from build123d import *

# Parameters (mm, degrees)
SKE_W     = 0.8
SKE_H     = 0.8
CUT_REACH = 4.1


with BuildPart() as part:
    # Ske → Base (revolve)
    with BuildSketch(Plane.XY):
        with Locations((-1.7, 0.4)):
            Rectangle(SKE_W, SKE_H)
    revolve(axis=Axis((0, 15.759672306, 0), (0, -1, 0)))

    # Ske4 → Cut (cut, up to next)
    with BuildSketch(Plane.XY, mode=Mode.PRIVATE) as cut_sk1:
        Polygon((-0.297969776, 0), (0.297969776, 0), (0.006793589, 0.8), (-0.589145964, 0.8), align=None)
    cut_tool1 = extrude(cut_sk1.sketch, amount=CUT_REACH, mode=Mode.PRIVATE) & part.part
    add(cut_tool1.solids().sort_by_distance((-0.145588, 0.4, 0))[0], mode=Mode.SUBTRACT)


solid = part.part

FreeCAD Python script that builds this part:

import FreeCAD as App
import Part
import Sketcher
from FreeCAD import Vector
Q = App.Units.Quantity

doc = App.newDocument("Part")
body = doc.addObject("PartDesign::Body", "Body")

# Sketch on XY plane
sketch1 = doc.addObject("Sketcher::SketchObject", "Sketch")
body.addObject(sketch1)
sketch1.AttachmentSupport = (doc.XY_Plane, [""])
sketch1.MapMode = "FlatFace"
sketch1.addGeometry([
    Part.LineSegment(Vector(-2.1, 0.8, 0), Vector(-2.1, 0, 0)),
    Part.LineSegment(Vector(-2.1, 0, 0), Vector(-1.3, 0, 0)),
    Part.LineSegment(Vector(-1.3, 0, 0), Vector(-1.3, 0.8, 0)),
    Part.LineSegment(Vector(-1.3, 0.8, 0), Vector(-2.1, 0.8, 0)),
], False)
sketch1.addConstraint([
    Sketcher.Constraint("Coincident", 0, 2, 1, 1),
    Sketcher.Constraint("Coincident", 1, 2, 2, 1),
    Sketcher.Constraint("Coincident", 2, 2, 3, 1),
    Sketcher.Constraint("Coincident", 3, 2, 0, 1),
    Sketcher.Constraint("Vertical", 0),
    Sketcher.Constraint("Horizontal", 1),
    Sketcher.Constraint("Vertical", 2),
    Sketcher.Constraint("Horizontal", 3),
    Sketcher.Constraint("PointOnObject", 0, 2, -1),
    Sketcher.Constraint("Equal", 3, 0),
    Sketcher.Constraint("DistanceX", 1, 1, 1, 2, Q("0.8 mm")),
    Sketcher.Constraint("DistanceX", 0, 2, -1, 1, Q("2.1 mm")),
])
revolution = doc.addObject("PartDesign::Revolution", "Revolution")
body.addObject(revolution)
revolution.Profile = sketch1
revolution.ReferenceAxis = (sketch1, ["V_Axis"])
revolution.Angle = 360

# Sketch on XY plane
sketch2 = doc.addObject("Sketcher::SketchObject", "Sketch001")
body.addObject(sketch2)
sketch2.AttachmentSupport = (doc.XY_Plane, [""])
sketch2.MapMode = "FlatFace"
sketch2.addGeometry([
    Part.LineSegment(Vector(-0.3, 0, 0), Vector(0.3, 0, 0)),
    Part.LineSegment(Vector(0.3, 0, 0), Vector(0, 0.8, 0)),
    Part.LineSegment(Vector(0, 0.8, 0), Vector(-0.6, 0.8, 0)),
    Part.LineSegment(Vector(-0.6, 0.8, 0), Vector(-0.3, 0, 0)),
], False)
sketch2.addConstraint([
    Sketcher.Constraint("Coincident", 0, 2, 1, 1),
    Sketcher.Constraint("Coincident", 1, 2, 2, 1),
    Sketcher.Constraint("Coincident", 2, 2, 3, 1),
    Sketcher.Constraint("Coincident", 3, 2, 0, 1),
    Sketcher.Constraint("Horizontal", 0),
    Sketcher.Constraint("Horizontal", 2),
    Sketcher.Constraint("Symmetric", 0, 2, 3, 2, -1, 1),
    Sketcher.Constraint("Parallel", 1, 3),
    Sketcher.Constraint("Angle", 1, Q("110 deg")),
    Sketcher.Constraint("DistanceY", -1, 1, 1, 2, Q("0.8 mm")),
    Sketcher.Constraint("DistanceX", 0, 1, 0, 2, Q("0.59594 mm")),
])
pocket1 = doc.addObject("PartDesign::Pocket", "Pocket")
body.addObject(pocket1)
pocket1.Profile = sketch2
pocket1.Length = 2.099989
pocket1.Reversed = True

doc.recompute()
